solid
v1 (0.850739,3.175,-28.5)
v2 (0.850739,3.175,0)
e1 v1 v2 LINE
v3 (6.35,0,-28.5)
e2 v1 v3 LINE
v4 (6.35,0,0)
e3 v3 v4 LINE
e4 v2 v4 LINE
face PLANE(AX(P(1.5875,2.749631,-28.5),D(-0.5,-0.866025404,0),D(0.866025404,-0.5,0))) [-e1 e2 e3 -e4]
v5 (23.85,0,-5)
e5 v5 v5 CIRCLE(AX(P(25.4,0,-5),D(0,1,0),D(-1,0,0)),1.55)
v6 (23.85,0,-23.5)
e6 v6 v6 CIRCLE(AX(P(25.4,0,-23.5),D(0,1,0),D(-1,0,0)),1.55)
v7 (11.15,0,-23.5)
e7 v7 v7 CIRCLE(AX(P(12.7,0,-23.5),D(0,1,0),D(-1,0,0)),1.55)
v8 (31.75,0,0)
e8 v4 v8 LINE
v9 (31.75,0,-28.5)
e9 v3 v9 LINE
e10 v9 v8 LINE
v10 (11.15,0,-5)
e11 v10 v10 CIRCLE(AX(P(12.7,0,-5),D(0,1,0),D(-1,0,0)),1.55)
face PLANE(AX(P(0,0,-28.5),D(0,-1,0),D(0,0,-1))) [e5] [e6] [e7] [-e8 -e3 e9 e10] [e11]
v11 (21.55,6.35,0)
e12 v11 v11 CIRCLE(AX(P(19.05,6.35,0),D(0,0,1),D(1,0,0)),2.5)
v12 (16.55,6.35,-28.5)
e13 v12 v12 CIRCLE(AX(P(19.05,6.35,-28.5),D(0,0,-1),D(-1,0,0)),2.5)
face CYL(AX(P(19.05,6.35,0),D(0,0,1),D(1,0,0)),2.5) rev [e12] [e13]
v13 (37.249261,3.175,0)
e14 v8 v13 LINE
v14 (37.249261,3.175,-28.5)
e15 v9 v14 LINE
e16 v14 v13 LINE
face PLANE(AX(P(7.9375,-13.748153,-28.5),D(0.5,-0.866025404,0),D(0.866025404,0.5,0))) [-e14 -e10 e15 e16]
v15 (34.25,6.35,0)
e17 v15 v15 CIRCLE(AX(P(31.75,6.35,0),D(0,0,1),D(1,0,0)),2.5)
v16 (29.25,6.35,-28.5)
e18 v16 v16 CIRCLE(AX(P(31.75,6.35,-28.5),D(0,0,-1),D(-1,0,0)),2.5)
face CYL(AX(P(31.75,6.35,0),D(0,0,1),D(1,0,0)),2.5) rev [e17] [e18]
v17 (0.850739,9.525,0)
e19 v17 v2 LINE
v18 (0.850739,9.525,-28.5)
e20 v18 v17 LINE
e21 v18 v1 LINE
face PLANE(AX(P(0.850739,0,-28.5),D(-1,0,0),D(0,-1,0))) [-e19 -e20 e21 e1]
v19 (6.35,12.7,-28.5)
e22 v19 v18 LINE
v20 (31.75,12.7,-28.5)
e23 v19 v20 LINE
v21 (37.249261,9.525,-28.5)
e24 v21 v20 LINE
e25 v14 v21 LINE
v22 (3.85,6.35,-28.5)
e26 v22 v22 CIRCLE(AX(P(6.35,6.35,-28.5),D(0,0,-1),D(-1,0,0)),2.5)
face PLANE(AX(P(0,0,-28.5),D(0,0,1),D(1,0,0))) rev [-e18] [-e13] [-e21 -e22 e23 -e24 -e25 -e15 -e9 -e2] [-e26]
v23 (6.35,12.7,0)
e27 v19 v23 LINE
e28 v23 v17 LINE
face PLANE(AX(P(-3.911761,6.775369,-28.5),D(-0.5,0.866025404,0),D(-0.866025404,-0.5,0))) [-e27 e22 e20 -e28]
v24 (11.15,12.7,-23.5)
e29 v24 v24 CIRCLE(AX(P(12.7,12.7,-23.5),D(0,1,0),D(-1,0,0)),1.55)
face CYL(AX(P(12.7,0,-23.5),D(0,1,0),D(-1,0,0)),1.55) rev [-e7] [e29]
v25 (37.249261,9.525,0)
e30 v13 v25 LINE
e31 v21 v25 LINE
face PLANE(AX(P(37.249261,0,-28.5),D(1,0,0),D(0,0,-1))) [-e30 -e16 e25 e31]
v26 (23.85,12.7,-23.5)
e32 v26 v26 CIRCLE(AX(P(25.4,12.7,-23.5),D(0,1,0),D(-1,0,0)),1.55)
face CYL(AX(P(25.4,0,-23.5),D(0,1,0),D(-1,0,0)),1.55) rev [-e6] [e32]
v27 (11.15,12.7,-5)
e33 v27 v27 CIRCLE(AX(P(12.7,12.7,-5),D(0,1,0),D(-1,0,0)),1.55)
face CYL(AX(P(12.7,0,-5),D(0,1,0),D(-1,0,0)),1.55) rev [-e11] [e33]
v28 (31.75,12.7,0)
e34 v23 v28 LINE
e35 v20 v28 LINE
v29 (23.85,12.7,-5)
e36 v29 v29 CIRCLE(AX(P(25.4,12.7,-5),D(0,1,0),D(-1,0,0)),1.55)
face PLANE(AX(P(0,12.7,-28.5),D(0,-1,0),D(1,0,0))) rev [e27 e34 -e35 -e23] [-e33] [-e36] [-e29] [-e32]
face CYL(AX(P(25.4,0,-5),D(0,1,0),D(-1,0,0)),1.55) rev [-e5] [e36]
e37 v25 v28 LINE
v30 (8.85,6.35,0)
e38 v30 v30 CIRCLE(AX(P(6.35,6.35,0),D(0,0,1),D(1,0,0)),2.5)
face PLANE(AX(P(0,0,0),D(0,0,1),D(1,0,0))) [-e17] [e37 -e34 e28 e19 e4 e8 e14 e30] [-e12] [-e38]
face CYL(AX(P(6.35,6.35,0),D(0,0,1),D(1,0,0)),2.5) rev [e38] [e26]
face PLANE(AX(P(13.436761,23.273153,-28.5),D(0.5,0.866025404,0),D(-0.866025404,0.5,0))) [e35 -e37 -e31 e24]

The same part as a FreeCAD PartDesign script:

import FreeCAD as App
import Part
import Sketcher
Q = App.Units.Quantity

doc = App.newDocument("Part")
body = doc.addObject("PartDesign::Body", "Body")

sketch1 = body.newObject("Sketcher::SketchObject", "Sketch")
sketch1.AttachmentSupport = (doc.getObject("XY_Plane"), [""])
sketch1.MapMode = "FlatFace"
sketch1.addGeometry(Part.LineSegment(App.Vector(6, 0, 0), App.Vector(32, 0, 0)), False)
sketch1.addGeometry(Part.LineSegment(App.Vector(32, 0, 0), App.Vector(37, 3, 0)), False)
sketch1.addGeometry(Part.LineSegment(App.Vector(37, 3, 0), App.Vector(37, 10, 0)), False)
sketch1.addGeometry(Part.LineSegment(App.Vector(37, 10, 0), App.Vector(32, 13, 0)), False)
sketch1.addGeometry(Part.LineSegment(App.Vector(32, 13, 0), App.Vector(6, 13, 0)), False)
sketch1.addGeometry(Part.LineSegment(App.Vector(6, 13, 0), App.Vector(1, 10, 0)), False)
sketch1.addGeometry(Part.LineSegment(App.Vector(1, 10, 0), App.Vector(1, 3, 0)), False)
sketch1.addGeometry(Part.LineSegment(App.Vector(1, 3, 0), App.Vector(6, 0, 0)), False)
sketch1.addConstraint(Sketcher.Constraint("Coincident", 0, 2, 1, 1))
sketch1.addConstraint(Sketcher.Constraint("Coincident", 1, 2, 2, 1))
sketch1.addConstraint(Sketcher.Constraint("Coincident", 2, 2, 3, 1))
sketch1.addConstraint(Sketcher.Constraint("Coincident", 3, 2, 4, 1))
sketch1.addConstraint(Sketcher.Constraint("Coincident", 4, 2, 5, 1))
sketch1.addConstraint(Sketcher.Constraint("Coincident", 5, 2, 6, 1))
sketch1.addConstraint(Sketcher.Constraint("Coincident", 6, 2, 7, 1))
sketch1.addConstraint(Sketcher.Constraint("Coincident", 7, 2, 0, 1))
sketch1.addConstraint(Sketcher.Constraint("Horizontal", 0))
sketch1.addConstraint(Sketcher.Constraint("Vertical", 2))
sketch1.addConstraint(Sketcher.Constraint("Horizontal", 4))
sketch1.addConstraint(Sketcher.Constraint("Vertical", 6))
sketch1.addConstraint(Sketcher.Constraint("PointOnObject", 0, 2, -1))
sketch1.addConstraint(Sketcher.Constraint("Parallel", 1, 5))
sketch1.addConstraint(Sketcher.Constraint("Parallel", 3, 7))
sketch1.addConstraint(Sketcher.Constraint("Horizontal", 2, 2, 5, 2))
sketch1.addConstraint(Sketcher.Constraint("Horizontal", 1, 2, 6, 2))
sketch1.addConstraint(Sketcher.Constraint("Vertical", 0, 2, 3, 2))
sketch1.addConstraint(Sketcher.Constraint("Vertical", 4, 2, 7, 2))
sketch1.addConstraint(Sketcher.Constraint("Angle", 1, Q("30 deg")))
sketch1.addConstraint(Sketcher.Constraint("DistanceX", 0, 1, 0, 2, 25.4))
sketch1.addConstraint(Sketcher.Constraint("DistanceY", 2, 1, 2, 2, 6.35))
sketch1.addConstraint(Sketcher.Constraint("DistanceY", -1, 1, 3, 2, 12.7))
sketch1.addConstraint(Sketcher.Constraint("DistanceX", -1, 1, 0, 2, 31.75))
pad1 = body.newObject("PartDesign::Pad", "Pad")
pad1.Profile = sketch1
pad1.Length = 28.5
pad1.Reversed = True

sketch2 = body.newObject("Sketcher::SketchObject", "Sketch001")
sketch2.AttachmentSupport = (doc.getObject("XY_Plane"), [""])
sketch2.MapMode = "FlatFace"
sketch2.addGeometry(Part.Circle(App.Vector(19.1, 6.3, 0), App.Vector(0, 0, 1), 2.5), False)
sketch2.addGeometry(Part.Circle(App.Vector(31.8, 6.3, 0), App.Vector(0, 0, 1), 2.5), False)
sketch2.addGeometry(Part.Circle(App.Vector(6.3, 6.3, 0), App.Vector(0, 0, 1), 2.5), False)
sketch2.addConstraint(Sketcher.Constraint("Equal", 0, 1))
sketch2.addConstraint(Sketcher.Constraint("Equal", 1, 2))
sketch2.addConstraint(Sketcher.Constraint("Horizontal", 0, 3, 1, 3))
sketch2.addConstraint(Sketcher.Constraint("Horizontal", 1, 3, 2, 3))
sketch2.addConstraint(Sketcher.Constraint("Diameter", 0, 5.0))
sketch2.addConstraint(Sketcher.Constraint("DistanceX", 0, 3, 1, 3, 12.7))
sketch2.addConstraint(Sketcher.Constraint("DistanceX", 2, 3, 0, 3, 12.7))
sketch2.addConstraint(Sketcher.Constraint("DistanceX", -1, 1, 0, 3, 19.05))
sketch2.addConstraint(Sketcher.Constraint("DistanceY", -1, 1, 0, 3, 6.35))
doc.recompute()
hole = body.newObject("PartDesign::Hole", "Hole")
hole.Profile = sketch2
hole.ThreadType = "None"
hole.Diameter = 5
hole.DepthType = "Dimension"
hole.Depth = 6
hole.DrillPoint = "Angled"
hole.DrillPointAngle = 118

sketch3 = body.newObject("Sketcher::SketchObject", "Sketch002")
sketch3.AttachmentSupport = (doc.getObject("XY_Plane"), [""])
sketch3.MapMode = "FlatFace"
sketch3.AttachmentOffset = App.Placement(App.Vector(0, 0, -28.5), App.Rotation())
sketch3.addGeometry(Part.Circle(App.Vector(31.8, 6.3, 0), App.Vector(0, 0, 1), 2.5), False)
sketch3.addGeometry(Part.Circle(App.Vector(19.1, 6.3, 0), App.Vector(0, 0, 1), 2.5), False)
sketch3.addGeometry(Part.Circle(App.Vector(6.3, 6.3, 0), App.Vector(0, 0, 1), 2.5), False)
sketch3.addConstraint(Sketcher.Constraint("Equal", 0, 1))
sketch3.addConstraint(Sketcher.Constraint("Equal", 1, 2))
sketch3.addConstraint(Sketcher.Constraint("Horizontal", 0, 3, 1, 3))
sketch3.addConstraint(Sketcher.Constraint("Horizontal", 1, 3, 2, 3))
sketch3.addConstraint(Sketcher.Constraint("Diameter", 0, 5.0))
sketch3.addConstraint(Sketcher.Constraint("DistanceX", 1, 3, 0, 3, 12.7))
sketch3.addConstraint(Sketcher.Constraint("DistanceX", 2, 3, 1, 3, 12.7))
sketch3.addConstraint(Sketcher.Constraint("DistanceX", -1, 1, 0, 3, 31.75))
sketch3.addConstraint(Sketcher.Constraint("DistanceY", -1, 1, 0, 3, 6.35))
doc.recompute()
hole2 = body.newObject("PartDesign::Hole", "Hole001")
hole2.Profile = sketch3
hole2.ThreadType = "None"
hole2.Diameter = 5
hole2.DepthType = "Dimension"
hole2.Depth = 8
hole2.DrillPoint = "Angled"
hole2.DrillPointAngle = 118
hole2.Reversed = True

sketch4 = body.newObject("Sketcher::SketchObject", "Sketch003")
sketch4.AttachmentSupport = (doc.getObject("XY_Plane"), [""])
sketch4.MapMode = "FlatFace"
sketch4.addGeometry(Part.Circle(App.Vector(6.3, 6.3, 0), App.Vector(0, 0, 1), 2.5), False)
sketch4.addGeometry(Part.Circle(App.Vector(19.1, 6.3, 0), App.Vector(0, 0, 1), 2.5), False)
sketch4.addGeometry(Part.Circle(App.Vector(31.8, 6.3, 0), App.Vector(0, 0, 1), 2.5), False)
sketch4.addConstraint(Sketcher.Constraint("Equal", 0, 1))
sketch4.addConstraint(Sketcher.Constraint("Equal", 1, 2))
sketch4.addConstraint(Sketcher.Constraint("Horizontal", 0, 3, 1, 3))
sketch4.addConstraint(Sketcher.Constraint("Horizontal", 1, 3, 2, 3))
sketch4.addConstraint(Sketcher.Constraint("Diameter", 0, 5.0))
sketch4.addConstraint(Sketcher.Constraint("DistanceX", 0, 3, 1, 3, 12.7))
sketch4.addConstraint(Sketcher.Constraint("DistanceX", 1, 3, 2, 3, 12.7))
sketch4.addConstraint(Sketcher.Constraint("DistanceX", -1, 1, 0, 3, 6.35))
sketch4.addConstraint(Sketcher.Constraint("DistanceY", -1, 1, 0, 3, 6.35))
pocket1 = body.newObject("PartDesign::Pocket", "Pocket")
pocket1.Profile = sketch4
pocket1.Type = "ThroughAll"

sketch5 = body.newObject("Sketcher::SketchObject", "Sketch004")
sketch5.AttachmentSupport = (doc.getObject("XZ_Plane"), [""])
sketch5.MapMode = "FlatFace"
sketch5.AttachmentOffset = App.Placement(App.Vector(0, 0, -12.7), App.Rotation())
sketch5.addGeometry(Part.Circle(App.Vector(12.7, -23.5, 0), App.Vector(0, 0, 1), 1.6), False)
sketch5.addGeometry(Part.Circle(App.Vector(25.4, -23.5, 0), App.Vector(0, 0, 1), 1.6), False)
sketch5.addGeometry(Part.Circle(App.Vector(25.4, -5, 0), App.Vector(0, 0, 1), 1.6), False)
sketch5.addGeometry(Part.Circle(App.Vector(12.7, -5, 0), App.Vector(0, 0, 1), 1.6), False)
sketch5.addConstraint(Sketcher.Constraint("Equal", 0, 1))
sketch5.addConstraint(Sketcher.Constraint("Equal", 1, 2))
sketch5.addConstraint(Sketcher.Constraint("Equal", 2, 3))
sketch5.addConstraint(Sketcher.Constraint("Horizontal", 0, 3, 1, 3))
sketch5.addConstraint(Sketcher.Constraint("Horizontal", 2, 3, 3, 3))
sketch5.addConstraint(Sketcher.Constraint("Vertical", 1, 3, 2, 3))
sketch5.addConstraint(Sketcher.Constraint("Vertical", 0, 3, 3, 3))
sketch5.addConstraint(Sketcher.Constraint("Diameter", 0, 3.1))
sketch5.addConstraint(Sketcher.Constraint("DistanceY", 2, 3, -1, 1, 5.0))
sketch5.addConstraint(Sketcher.Constraint("DistanceX", -1, 1, 0, 3, 12.7))
sketch5.addConstraint(Sketcher.Constraint("DistanceY", 0, 3, -1, 1, 23.5))
sketch5.addConstraint(Sketcher.Constraint("DistanceX", -1, 1, 1, 3, 25.4))
pocket2 = body.newObject("PartDesign::Pocket", "Pocket001")
pocket2.Profile = sketch5
pocket2.Type = "ThroughAll"
pocket2.Reversed = True

doc.recompute()
